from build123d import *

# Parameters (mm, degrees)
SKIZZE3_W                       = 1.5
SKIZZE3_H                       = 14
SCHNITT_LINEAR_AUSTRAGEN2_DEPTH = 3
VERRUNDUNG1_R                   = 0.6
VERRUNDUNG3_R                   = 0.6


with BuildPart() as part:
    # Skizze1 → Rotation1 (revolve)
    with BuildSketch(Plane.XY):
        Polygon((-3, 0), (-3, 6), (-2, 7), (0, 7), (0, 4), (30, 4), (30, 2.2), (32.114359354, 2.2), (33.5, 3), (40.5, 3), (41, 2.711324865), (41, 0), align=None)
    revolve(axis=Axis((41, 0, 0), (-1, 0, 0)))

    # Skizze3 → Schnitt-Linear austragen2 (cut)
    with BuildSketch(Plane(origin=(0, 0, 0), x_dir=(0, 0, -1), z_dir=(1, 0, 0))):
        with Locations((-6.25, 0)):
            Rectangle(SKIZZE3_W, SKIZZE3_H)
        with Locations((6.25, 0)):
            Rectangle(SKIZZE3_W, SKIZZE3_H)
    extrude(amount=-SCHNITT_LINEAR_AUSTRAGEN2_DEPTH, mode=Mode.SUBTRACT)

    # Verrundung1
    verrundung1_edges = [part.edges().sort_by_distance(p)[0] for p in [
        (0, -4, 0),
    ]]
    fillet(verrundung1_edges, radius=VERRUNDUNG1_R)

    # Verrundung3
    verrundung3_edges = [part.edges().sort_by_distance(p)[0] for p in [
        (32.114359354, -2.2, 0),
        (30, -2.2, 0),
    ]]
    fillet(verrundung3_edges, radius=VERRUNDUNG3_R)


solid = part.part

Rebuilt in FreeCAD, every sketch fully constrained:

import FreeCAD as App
import Part
import Sketcher

V = App.Vector
Q = App.Units.Quantity


def edges_at(feature, points):
    """Names of the edges that pass closest to the given points."""
    edges = feature.Shape.Edges
    near = lambda p: min(range(len(edges)), key=lambda i: edges[i].distToShape(Part.Vertex(*p))[0])
    return sorted({f"Edge{near(p) + 1}" for p in points})


def add_polygon(sketch, points):
    """Adds a closed chain of lines whose ends are joined by coincident constraints."""
    first, n = sketch.GeometryCount, len(points)
    for a, b in zip(points, points[1:] + points[:1]):
        sketch.addGeometry(Part.LineSegment(App.Vector(*a, 0), App.Vector(*b, 0)), False)
    for i in range(n):
        sketch.addConstraint(Sketcher.Constraint("Coincident", first + i, 2, first + (i + 1) % n, 1))

doc = App.newDocument("Part")
params = doc.addObject("Spreadsheet::Sheet", "Params")
for row, (alias, value) in enumerate([
    ("sketch1_width", "44 mm"),
    ("sketch1_width2", "7 mm"),
    ("sketch1_width3", "30 mm"),
    ("sketch1_width4", "2 mm"),
    ("sketch1_height", "6 mm"),
    ("revolution_angle", "360 deg"),
    ("sketch2_width", "14 mm"),
    ("sketch2_height", "1.5 mm"),
    ("pocket1_length", "3 mm"),
    ("fillet_radius", "0.6 mm"),
    ("fillet2_radius", "0.6 mm"),
], start=1):
    params.set(f"A{row}", alias)
    params.set(f"B{row}", "=" + value)
    params.setAlias(f"B{row}", alias)

body = doc.addObject("PartDesign::Body", "Body")

# Sketch on XY plane
sketch1 = doc.addObject("Sketcher::SketchObject", "Sketch")
body.addObject(sketch1)
sketch1.AttachmentSupport = (doc.XY_Plane, [""])
sketch1.MapMode = "FlatFace"
add_polygon(sketch1, [(-3, 6), (-3, 0), (41, 0), (41, 2.7), (40.5, 3), (33.5, 3), (32.1, 2.2), (30, 2.2), (30, 4), (0, 4), (0, 7), (-2, 7)])  # lines 0-11
sketch1.addConstraint(Sketcher.Constraint("Vertical", 0))
sketch1.addConstraint(Sketcher.Constraint("Horizontal", 1))
sketch1.addConstraint(Sketcher.Constraint("Vertical", 2))
sketch1.addConstraint(Sketcher.Constraint("Horizontal", 4))
sketch1.addConstraint(Sketcher.Constraint("Horizontal", 6))
sketch1.addConstraint(Sketcher.Constraint("Vertical", 7))
sketch1.addConstraint(Sketcher.Constraint("Horizontal", 8))
sketch1.addConstraint(Sketcher.Constraint("Vertical", 9))
sketch1.addConstraint(Sketcher.Constraint("Horizontal", 10))
sketch1.addConstraint(Sketcher.Constraint("PointOnObject", 0, 2, -1))
sketch1.addConstraint(Sketcher.Constraint("PointOnObject", 8, 2, -2))
sketch1.addConstraint(Sketcher.Constraint("DistanceX", 1, 1, 1, 2, Q("44 mm")))
sketch1.addConstraint(Sketcher.Constraint("DistanceX", 4, 2, 4, 1, Q("7 mm")))
sketch1.addConstraint(Sketcher.Constraint("DistanceX", 8, 2, 8, 1, Q("30 mm")))
sketch1.addConstraint(Sketcher.Constraint("DistanceX", 10, 2, 10, 1, Q("2 mm")))
sketch1.addConstraint(Sketcher.Constraint("DistanceY", 0, 2, 0, 1, Q("6 mm")))
sketch1.addConstraint(Sketcher.Constraint("DistanceY", 9, 1, 9, 2, Q("3 mm")))
sketch1.addConstraint(Sketcher.Constraint("Angle", 3, Q("150 deg")))
sketch1.addConstraint(Sketcher.Constraint("Angle", 5, Q("-150 deg")))
sketch1.addConstraint(Sketcher.Constraint("Angle", 11, Q("-135 deg")))
sketch1.addConstraint(Sketcher.Constraint("DistanceY", 7, 1, 7, 2, Q("1.8 mm")))
sketch1.addConstraint(Sketcher.Constraint("DistanceX", 0, 2, -1, 1, Q("3 mm")))
sketch1.addConstraint(Sketcher.Constraint("DistanceY", -1, 1, 3, 2, Q("3 mm")))
sketch1.addConstraint(Sketcher.Constraint("DistanceX", -1, 1, 3, 2, Q("40.5 mm")))
sketch1.setExpression("Constraints[23]", "Params.sketch1_width")
sketch1.setExpression("Constraints[24]", "Params.sketch1_width2")
sketch1.setExpression("Constraints[25]", "Params.sketch1_width3")
sketch1.setExpression("Constraints[26]", "Params.sketch1_width4")
sketch1.setExpression("Constraints[27]", "Params.sketch1_height")
revolution = doc.addObject("PartDesign::Revolution", "Revolution")
body.addObject(revolution)
revolution.Profile = sketch1
revolution.ReferenceAxis = (sketch1, ["H_Axis"])
revolution.setExpression("Angle", "Params.revolution_angle")

# Sketch on YZ plane
sketch2 = doc.addObject("Sketcher::SketchObject", "Sketch001")
body.addObject(sketch2)
sketch2.AttachmentSupport = (doc.YZ_Plane, [""])
sketch2.MapMode = "FlatFace"
add_polygon(sketch2, [(7, 7), (-7, 7), (-7, 5.5), (7, 5.5)])  # lines 0-3
add_polygon(sketch2, [(7, -5.5), (-7, -5.5), (-7, -7), (7, -7)])  # lines 4-7
sketch2.addConstraint(Sketcher.Constraint("Horizontal", 0))
sketch2.addConstraint(Sketcher.Constraint("Vertical", 1))
sketch2.addConstraint(Sketcher.Constraint("Horizontal", 2))
sketch2.addConstraint(Sketcher.Constraint("Vertical", 3))
sketch2.addConstraint(Sketcher.Constraint("Horizontal", 4))
sketch2.addConstraint(Sketcher.Constraint("Vertical", 5))
sketch2.addConstraint(Sketcher.Constraint("Horizontal", 6))
sketch2.addConstraint(Sketcher.Constraint("Vertical", 7))
sketch2.addConstraint(Sketcher.Constraint("Symmetric", 2, 2, 4, 2, -1, 1))
sketch2.addConstraint(Sketcher.Constraint("Symmetric", 0, 2, 6, 2, -1, 1))
sketch2.addConstraint(Sketcher.Constraint("Vertical", 1, 2, 4, 2))
sketch2.addConstraint(Sketcher.Constraint("DistanceX", 0, 2, 0, 1, Q("14 mm")))
sketch2.addConstraint(Sketcher.Constraint("DistanceY", 1, 2, 1, 1, Q("1.5 mm")))
sketch2.addConstraint(Sketcher.Constraint("DistanceY", -1, 1, 0, 2, Q("7 mm")))
sketch2.setExpression("Constraints[19]", "Params.sketch2_width")
sketch2.setExpression("Constraints[20]", "Params.sketch2_height")
pocket1 = doc.addObject("PartDesign::Pocket", "Pocket")
body.addObject(pocket1)
pocket1.Profile = sketch2
pocket1.setExpression("Length", "Params.pocket1_length")
doc.recompute()

fillet = doc.addObject("PartDesign::Fillet", "Fillet")
body.addObject(fillet)
fillet.Base = (pocket1, edges_at(pocket1, [(0, -4, 0)]))
fillet.setExpression("Radius", "Params.fillet_radius")
doc.recompute()

fillet2 = doc.addObject("PartDesign::Fillet", "Fillet001")
body.addObject(fillet2)
fillet2.Base = (fillet, edges_at(fillet, [(32.114, -2.2, 0), (30, -2.2, 0)]))
fillet2.setExpression("Radius", "Params.fillet2_radius")

doc.recompute()
